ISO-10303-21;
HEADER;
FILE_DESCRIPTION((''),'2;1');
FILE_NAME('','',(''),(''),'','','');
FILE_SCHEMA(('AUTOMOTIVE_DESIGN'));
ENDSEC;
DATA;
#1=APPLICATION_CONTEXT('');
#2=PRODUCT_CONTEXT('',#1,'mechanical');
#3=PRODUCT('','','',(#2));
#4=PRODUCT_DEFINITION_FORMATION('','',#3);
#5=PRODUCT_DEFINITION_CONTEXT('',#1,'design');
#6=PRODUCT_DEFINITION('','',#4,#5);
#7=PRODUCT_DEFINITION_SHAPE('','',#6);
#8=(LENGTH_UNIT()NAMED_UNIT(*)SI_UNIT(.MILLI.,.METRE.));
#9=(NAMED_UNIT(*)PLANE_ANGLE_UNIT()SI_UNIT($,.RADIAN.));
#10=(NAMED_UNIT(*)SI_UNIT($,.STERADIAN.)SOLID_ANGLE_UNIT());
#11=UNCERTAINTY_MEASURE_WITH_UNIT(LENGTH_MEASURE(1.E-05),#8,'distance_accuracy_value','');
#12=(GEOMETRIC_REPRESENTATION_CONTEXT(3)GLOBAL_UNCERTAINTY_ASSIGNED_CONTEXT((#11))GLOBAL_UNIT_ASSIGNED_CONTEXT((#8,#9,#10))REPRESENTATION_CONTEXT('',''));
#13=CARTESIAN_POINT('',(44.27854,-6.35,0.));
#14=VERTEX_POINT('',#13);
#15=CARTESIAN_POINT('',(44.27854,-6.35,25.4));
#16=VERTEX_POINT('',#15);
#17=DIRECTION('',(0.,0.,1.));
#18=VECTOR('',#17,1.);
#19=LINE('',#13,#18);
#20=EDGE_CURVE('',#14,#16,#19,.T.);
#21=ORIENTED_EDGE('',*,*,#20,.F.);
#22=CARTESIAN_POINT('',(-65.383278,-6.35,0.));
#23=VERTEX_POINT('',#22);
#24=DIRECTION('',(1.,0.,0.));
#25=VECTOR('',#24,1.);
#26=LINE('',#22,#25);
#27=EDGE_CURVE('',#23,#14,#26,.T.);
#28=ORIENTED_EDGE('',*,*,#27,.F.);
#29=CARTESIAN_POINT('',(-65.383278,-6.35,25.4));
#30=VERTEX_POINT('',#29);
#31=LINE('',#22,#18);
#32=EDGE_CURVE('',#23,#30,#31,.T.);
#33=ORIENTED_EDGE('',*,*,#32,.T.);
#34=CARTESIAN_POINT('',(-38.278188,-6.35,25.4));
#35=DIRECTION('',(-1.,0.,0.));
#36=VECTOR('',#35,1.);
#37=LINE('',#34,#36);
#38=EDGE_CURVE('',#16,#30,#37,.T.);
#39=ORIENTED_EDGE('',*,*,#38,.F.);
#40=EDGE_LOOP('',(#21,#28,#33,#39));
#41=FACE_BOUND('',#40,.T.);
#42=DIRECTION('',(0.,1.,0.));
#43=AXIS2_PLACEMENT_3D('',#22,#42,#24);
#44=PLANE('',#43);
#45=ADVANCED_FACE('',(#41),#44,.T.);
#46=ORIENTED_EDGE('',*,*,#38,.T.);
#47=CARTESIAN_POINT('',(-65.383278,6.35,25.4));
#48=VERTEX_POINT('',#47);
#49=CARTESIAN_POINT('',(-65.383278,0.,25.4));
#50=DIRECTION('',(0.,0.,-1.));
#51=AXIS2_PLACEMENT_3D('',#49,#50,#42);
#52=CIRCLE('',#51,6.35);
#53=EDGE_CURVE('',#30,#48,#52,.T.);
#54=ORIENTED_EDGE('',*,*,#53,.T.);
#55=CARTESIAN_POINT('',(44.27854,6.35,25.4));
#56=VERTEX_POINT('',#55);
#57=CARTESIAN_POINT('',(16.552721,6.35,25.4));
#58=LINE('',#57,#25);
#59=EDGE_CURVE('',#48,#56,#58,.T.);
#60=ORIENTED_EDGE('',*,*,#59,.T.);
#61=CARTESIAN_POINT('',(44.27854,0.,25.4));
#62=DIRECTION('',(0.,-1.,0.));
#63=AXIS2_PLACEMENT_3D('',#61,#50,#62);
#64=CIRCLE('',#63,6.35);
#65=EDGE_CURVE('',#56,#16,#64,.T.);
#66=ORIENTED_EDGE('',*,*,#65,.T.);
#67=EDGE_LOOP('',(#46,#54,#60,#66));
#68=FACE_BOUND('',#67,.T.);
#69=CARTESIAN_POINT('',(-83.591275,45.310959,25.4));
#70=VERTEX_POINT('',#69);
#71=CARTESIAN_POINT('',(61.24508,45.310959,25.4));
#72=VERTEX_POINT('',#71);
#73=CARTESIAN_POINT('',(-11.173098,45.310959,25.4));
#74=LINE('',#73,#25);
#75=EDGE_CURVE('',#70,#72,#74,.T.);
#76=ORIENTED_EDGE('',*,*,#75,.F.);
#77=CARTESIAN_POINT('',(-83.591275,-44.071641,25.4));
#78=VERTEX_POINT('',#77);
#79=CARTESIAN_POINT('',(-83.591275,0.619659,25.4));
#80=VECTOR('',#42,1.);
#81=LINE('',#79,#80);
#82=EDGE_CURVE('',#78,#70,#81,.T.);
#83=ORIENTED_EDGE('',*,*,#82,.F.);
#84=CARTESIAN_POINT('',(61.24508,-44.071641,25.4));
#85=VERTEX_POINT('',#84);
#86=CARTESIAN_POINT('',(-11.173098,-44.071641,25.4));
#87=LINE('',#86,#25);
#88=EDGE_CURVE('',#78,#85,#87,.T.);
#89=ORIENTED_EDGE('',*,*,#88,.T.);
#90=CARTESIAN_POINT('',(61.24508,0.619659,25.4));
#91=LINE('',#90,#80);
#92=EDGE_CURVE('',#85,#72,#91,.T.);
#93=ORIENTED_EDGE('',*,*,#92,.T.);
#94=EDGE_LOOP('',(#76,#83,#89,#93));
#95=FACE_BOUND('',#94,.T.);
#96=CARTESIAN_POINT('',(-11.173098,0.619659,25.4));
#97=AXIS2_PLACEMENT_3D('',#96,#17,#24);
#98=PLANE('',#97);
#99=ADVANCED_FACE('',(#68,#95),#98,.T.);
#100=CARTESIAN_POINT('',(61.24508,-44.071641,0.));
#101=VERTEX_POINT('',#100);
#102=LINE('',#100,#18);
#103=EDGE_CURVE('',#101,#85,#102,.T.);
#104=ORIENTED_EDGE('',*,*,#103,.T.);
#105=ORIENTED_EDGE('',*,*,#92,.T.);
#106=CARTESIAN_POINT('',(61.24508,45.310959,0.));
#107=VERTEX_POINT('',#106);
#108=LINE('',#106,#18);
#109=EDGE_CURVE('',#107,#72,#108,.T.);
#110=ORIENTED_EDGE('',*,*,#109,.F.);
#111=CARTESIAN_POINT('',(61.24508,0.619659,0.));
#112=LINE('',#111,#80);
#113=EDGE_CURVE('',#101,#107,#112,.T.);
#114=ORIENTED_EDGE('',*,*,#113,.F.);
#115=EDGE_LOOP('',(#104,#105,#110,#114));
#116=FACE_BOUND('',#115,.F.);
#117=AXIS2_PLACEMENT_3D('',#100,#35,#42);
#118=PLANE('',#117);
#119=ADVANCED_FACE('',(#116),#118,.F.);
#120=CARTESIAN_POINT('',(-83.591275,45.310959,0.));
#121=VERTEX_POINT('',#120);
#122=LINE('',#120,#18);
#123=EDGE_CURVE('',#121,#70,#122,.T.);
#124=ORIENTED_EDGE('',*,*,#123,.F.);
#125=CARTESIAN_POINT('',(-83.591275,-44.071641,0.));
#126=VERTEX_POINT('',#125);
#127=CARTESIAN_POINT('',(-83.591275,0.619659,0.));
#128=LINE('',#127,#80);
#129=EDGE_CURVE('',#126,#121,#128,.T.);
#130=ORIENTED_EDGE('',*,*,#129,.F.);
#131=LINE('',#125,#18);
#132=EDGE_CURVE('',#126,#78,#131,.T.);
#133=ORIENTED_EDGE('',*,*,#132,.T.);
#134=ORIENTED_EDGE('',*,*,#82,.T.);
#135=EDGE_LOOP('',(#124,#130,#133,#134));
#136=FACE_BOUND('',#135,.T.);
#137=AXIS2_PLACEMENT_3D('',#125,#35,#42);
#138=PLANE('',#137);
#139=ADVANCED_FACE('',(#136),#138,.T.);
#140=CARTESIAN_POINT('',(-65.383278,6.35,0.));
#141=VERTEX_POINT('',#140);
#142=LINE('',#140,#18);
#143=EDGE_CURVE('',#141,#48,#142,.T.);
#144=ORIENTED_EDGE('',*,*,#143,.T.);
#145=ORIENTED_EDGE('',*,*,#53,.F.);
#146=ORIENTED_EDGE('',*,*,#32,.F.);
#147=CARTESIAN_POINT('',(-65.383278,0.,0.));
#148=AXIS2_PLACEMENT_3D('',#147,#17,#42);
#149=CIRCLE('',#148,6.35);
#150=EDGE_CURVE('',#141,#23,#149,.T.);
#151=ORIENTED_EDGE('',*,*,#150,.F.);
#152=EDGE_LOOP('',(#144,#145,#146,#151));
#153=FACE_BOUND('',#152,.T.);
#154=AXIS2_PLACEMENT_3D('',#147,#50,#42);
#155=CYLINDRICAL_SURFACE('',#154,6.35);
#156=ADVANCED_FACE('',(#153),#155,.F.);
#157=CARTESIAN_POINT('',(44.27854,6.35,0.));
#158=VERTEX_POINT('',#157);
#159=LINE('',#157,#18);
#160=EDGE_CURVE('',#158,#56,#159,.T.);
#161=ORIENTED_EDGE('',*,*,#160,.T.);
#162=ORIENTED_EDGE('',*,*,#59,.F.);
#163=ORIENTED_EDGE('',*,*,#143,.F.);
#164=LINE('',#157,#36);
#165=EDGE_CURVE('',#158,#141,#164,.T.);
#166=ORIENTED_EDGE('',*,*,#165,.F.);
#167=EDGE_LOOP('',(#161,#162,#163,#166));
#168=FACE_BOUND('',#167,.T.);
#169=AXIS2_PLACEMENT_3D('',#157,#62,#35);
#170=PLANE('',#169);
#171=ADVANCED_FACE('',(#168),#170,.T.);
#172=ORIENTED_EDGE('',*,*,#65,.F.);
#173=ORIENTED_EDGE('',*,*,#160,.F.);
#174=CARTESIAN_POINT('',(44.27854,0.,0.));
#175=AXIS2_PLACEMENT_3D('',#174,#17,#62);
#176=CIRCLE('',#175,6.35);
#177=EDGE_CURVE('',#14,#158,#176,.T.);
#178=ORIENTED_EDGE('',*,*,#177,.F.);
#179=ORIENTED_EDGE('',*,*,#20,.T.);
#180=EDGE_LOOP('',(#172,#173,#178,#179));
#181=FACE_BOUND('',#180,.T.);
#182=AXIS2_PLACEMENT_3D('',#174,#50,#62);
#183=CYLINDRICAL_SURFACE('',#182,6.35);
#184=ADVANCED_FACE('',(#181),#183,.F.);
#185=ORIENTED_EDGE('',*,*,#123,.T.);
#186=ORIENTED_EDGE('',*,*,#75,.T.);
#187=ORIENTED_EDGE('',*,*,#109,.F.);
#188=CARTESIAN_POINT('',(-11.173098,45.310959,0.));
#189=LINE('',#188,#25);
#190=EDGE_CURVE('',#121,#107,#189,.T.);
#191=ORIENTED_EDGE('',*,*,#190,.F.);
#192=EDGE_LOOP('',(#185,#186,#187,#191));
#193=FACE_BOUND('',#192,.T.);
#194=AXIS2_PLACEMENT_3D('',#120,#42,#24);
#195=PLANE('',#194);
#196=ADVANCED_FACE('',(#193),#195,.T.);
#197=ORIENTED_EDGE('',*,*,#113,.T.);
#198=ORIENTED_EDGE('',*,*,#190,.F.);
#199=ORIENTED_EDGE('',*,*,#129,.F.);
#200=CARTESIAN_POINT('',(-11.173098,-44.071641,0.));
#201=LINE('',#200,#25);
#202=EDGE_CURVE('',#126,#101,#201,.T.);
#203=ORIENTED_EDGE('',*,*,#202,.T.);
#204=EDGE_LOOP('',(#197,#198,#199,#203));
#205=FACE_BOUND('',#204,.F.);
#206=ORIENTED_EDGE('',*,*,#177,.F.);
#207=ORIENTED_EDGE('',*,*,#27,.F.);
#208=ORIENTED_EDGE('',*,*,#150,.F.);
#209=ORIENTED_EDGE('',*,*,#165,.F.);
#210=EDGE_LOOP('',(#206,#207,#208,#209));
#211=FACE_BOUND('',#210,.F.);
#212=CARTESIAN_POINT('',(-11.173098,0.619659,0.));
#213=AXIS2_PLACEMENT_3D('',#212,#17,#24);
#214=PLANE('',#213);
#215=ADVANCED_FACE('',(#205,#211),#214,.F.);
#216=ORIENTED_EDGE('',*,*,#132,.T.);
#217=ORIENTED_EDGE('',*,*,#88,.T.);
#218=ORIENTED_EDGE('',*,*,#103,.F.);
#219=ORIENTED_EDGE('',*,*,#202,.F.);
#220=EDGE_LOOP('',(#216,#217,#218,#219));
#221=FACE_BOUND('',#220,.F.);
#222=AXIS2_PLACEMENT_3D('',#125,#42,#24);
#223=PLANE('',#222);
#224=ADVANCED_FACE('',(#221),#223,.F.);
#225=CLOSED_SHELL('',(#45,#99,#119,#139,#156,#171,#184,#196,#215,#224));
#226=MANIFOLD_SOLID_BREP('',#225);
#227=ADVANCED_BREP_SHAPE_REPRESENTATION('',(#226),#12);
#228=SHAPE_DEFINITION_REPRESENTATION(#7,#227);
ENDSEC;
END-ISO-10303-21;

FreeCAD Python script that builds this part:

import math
import FreeCAD as App
import Part
import Sketcher
from FreeCAD import Vector
Q = App.Units.Quantity


def add_polygon(sketch, points):
    """Adds a closed chain of lines whose ends are joined by coincident constraints."""
    first, n = sketch.GeometryCount, len(points)
    for a, b in zip(points, points[1:] + points[:1]):
        sketch.addGeometry(Part.LineSegment(App.Vector(*a, 0), App.Vector(*b, 0)), False)
    for i in range(n):
        sketch.addConstraint(Sketcher.Constraint("Coincident", first + i, 2, first + (i + 1) % n, 1))

doc = App.newDocument("Part")
params = doc.addObject("Spreadsheet::Sheet", "Params")
for row, (alias, value) in enumerate([
    ("sketch1_height", "3.519 in"),
    ("pad1_length", "1 in"),
    ("sketch2_radius", "0.25 in"),
], start=1):
    params.set(f"A{row}", alias)
    params.set(f"B{row}", "=" + value)
    params.setAlias(f"B{row}", alias)

body = doc.addObject("PartDesign::Body", "Body")

# Sketch on XY plane
sketch1 = doc.addObject("Sketcher::SketchObject", "Sketch")
body.addObject(sketch1)
sketch1.AttachmentSupport = (doc.XY_Plane, [""])
sketch1.MapMode = "FlatFace"
add_polygon(sketch1, [(-84, 45), (-84, -44), (61, -44), (61, 45)])  # lines 0-3
sketch1.addConstraint(Sketcher.Constraint("Vertical", 0))
sketch1.addConstraint(Sketcher.Constraint("Horizontal", 1))
sketch1.addConstraint(Sketcher.Constraint("Vertical", 2))
sketch1.addConstraint(Sketcher.Constraint("Horizontal", 3))
sketch1.addConstraint(Sketcher.Constraint("DistanceY", 0, 2, 0, 1, Q("3.519 in")))
sketch1.addConstraint(Sketcher.Constraint("DistanceX", 1, 1, 1, 2, 144.836355))
sketch1.addConstraint(Sketcher.Constraint("DistanceY", 0, 2, -1, 1, 44.071641))
sketch1.addConstraint(Sketcher.Constraint("DistanceX", -1, 1, 1, 2, 61.24508))
sketch1.setExpression("Constraints[8]", "Params.sketch1_height")
pad1 = doc.addObject("PartDesign::Pad", "Pad")
body.addObject(pad1)
pad1.Profile = sketch1
pad1.setExpression("Length", "Params.pad1_length")

# Sketch on XY plane
sketch2 = doc.addObject("Sketcher::SketchObject", "Sketch001")
body.addObject(sketch2)
sketch2.AttachmentSupport = (doc.XY_Plane, [""])
sketch2.MapMode = "FlatFace"
sketch2.addGeometry(Part.ArcOfCircle(Part.Circle(Vector(-65, 0, 0), Vector(0, 0, 1), 6), math.radians(90), math.radians(270)), False)
sketch2.addGeometry(Part.LineSegment(Vector(-65, -6, 0), Vector(44, -6, 0)), False)
sketch2.addGeometry(Part.ArcOfCircle(Part.Circle(Vector(44, 0, 0), Vector(0, 0, 1), 6), math.radians(-90), math.radians(90)), False)
sketch2.addGeometry(Part.LineSegment(Vector(44, 6, 0), Vector(-65, 6, 0)), False)
sketch2.addConstraint(Sketcher.Constraint("Tangent", 0, 2, 1, 1))
sketch2.addConstraint(Sketcher.Constraint("Tangent", 1, 2, 2, 1))
sketch2.addConstraint(Sketcher.Constraint("Tangent", 2, 2, 3, 1))
sketch2.addConstraint(Sketcher.Constraint("Tangent", 3, 2, 0, 1))
sketch2.addConstraint(Sketcher.Constraint("Horizontal", 1))
sketch2.addConstraint(Sketcher.Constraint("Horizontal", 3))
sketch2.addConstraint(Sketcher.Constraint("PointOnObject", 0, 3, -1))
sketch2.addConstraint(Sketcher.Constraint("Radius", 0, Q("0.25 in")))
sketch2.addConstraint(Sketcher.Constraint("DistanceX", 1, 1, 1, 2, 109.661818))
sketch2.addConstraint(Sketcher.Constraint("DistanceX", 0, 3, -1, 1, 65.383278))
sketch2.setExpression("Constraints[7]", "Params.sketch2_radius")
pocket1 = doc.addObject("PartDesign::Pocket", "Pocket")
body.addObject(pocket1)
pocket1.Profile = sketch2
pocket1.Type = "ThroughAll"
pocket1.Reversed = True

doc.recompute()
